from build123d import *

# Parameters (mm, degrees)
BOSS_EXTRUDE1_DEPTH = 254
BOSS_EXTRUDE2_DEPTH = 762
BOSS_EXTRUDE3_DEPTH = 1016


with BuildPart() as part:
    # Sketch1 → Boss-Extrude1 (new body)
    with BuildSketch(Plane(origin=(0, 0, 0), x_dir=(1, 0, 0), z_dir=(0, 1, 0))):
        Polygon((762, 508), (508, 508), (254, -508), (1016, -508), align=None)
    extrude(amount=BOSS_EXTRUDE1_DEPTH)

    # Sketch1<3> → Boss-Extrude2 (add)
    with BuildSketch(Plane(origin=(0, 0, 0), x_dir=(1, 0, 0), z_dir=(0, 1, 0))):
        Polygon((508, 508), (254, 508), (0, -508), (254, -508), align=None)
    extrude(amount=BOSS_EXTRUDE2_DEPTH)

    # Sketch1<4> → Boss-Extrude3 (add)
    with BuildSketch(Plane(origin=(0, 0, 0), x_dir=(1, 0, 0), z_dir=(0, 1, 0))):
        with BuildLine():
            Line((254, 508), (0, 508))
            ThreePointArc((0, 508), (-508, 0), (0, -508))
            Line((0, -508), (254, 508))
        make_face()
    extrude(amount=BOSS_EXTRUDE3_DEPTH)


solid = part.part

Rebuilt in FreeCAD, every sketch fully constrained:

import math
import FreeCAD as App
import Part
import Sketcher

V = App.Vector
Q = App.Units.Quantity


def add_polygon(sketch, points):
    """Adds a closed chain of lines whose ends are joined by coincident constraints."""
    first, n = sketch.GeometryCount, len(points)
    for a, b in zip(points, points[1:] + points[:1]):
        sketch.addGeometry(Part.LineSegment(App.Vector(*a, 0), App.Vector(*b, 0)), False)
    for i in range(n):
        sketch.addConstraint(Sketcher.Constraint("Coincident", first + i, 2, first + (i + 1) % n, 1))

doc = App.newDocument("Part")
body = doc.addObject("PartDesign::Body", "Body")

# Sketch on XZ plane
sketch1 = body.newObject("Sketcher::SketchObject", "Sketch")
sketch1.AttachmentSupport = (doc.getObject("XZ_Plane"), [""])
sketch1.MapMode = "FlatFace"
add_polygon(sketch1, [(762, -508), (508, -508), (254, 508), (1016, 508)])  # lines 0-3
sketch1.addConstraint([
    Sketcher.Constraint("Horizontal", 0),
    Sketcher.Constraint("Horizontal", 2),
    Sketcher.Constraint("Equal", 1, 3),
    Sketcher.Constraint("DistanceX", 0, 2, 0, 1, Q("10 in")),
    Sketcher.Constraint("DistanceX", 2, 1, 2, 2, Q("30 in")),
    Sketcher.Constraint("DistanceX", -1, 1, 0, 2, Q("20 in")),
    Sketcher.Constraint("DistanceY", 0, 2, -1, 1, Q("20 in")),
    Sketcher.Constraint("DistanceY", -1, 1, 1, 2, Q("20 in")),
])
pad1 = body.newObject("PartDesign::Pad", "Pad")
pad1.Profile = sketch1
pad1.Length = Q("10 in")
pad1.Reversed = True

# Sketch on XZ plane
sketch2 = body.newObject("Sketcher::SketchObject", "Sketch001")
sketch2.AttachmentSupport = (doc.getObject("XZ_Plane"), [""])
sketch2.MapMode = "FlatFace"
add_polygon(sketch2, [(508, -508), (254, -508), (0, 508), (254, 508)])  # lines 0-3
sketch2.addConstraint([
    Sketcher.Constraint("Horizontal", 0),
    Sketcher.Constraint("Horizontal", 2),
    Sketcher.Constraint("Symmetric", 0, 2, 2, 2, -1),
    Sketcher.Constraint("PointOnObject", 1, 2, -2),
    Sketcher.Constraint("Parallel", 1, 3),
    Sketcher.Constraint("DistanceX", 0, 2, 0, 1, Q("10 in")),
    Sketcher.Constraint("DistanceY", 0, 2, -1, 1, Q("20 in")),
])
pad2 = body.newObject("PartDesign::Pad", "Pad001")
pad2.Profile = sketch2
pad2.Length = Q("30 in")
pad2.Reversed = True

# Sketch on XZ plane
sketch3 = body.newObject("Sketcher::SketchObject", "Sketch002")
sketch3.AttachmentSupport = (doc.getObject("XZ_Plane"), [""])
sketch3.MapMode = "FlatFace"
sketch3.addGeometry([
    Part.LineSegment(V(254, -508, 0), V(0, -508, 0)),
    Part.ArcOfCircle(Part.Circle(V(0, 0, 0), V(0, 0, 1), 508), math.radians(90), math.radians(270)),
    Part.LineSegment(V(0, 508, 0), V(254, -508, 0)),
], False)
sketch3.addConstraint([
    Sketcher.Constraint("Tangent", 0, 2, 1, 2),
    Sketcher.Constraint("Coincident", 1, 1, 2, 1),
    Sketcher.Constraint("Coincident", 2, 2, 0, 1),
    Sketcher.Constraint("Horizontal", 0),
    Sketcher.Constraint("Coincident", 1, 3, -1, 1),
    Sketcher.Constraint("Radius", 1, Q("20 in")),
    Sketcher.Constraint("DistanceX", 0, 2, 0, 1, Q("10 in")),
    Sketcher.Constraint("Distance", 2, Q("1047.268829 mm")),
])
pad3 = body.newObject("PartDesign::Pad", "Pad002")
pad3.Profile = sketch3
pad3.Length = Q("40 in")
pad3.Reversed = True

doc.recompute()
